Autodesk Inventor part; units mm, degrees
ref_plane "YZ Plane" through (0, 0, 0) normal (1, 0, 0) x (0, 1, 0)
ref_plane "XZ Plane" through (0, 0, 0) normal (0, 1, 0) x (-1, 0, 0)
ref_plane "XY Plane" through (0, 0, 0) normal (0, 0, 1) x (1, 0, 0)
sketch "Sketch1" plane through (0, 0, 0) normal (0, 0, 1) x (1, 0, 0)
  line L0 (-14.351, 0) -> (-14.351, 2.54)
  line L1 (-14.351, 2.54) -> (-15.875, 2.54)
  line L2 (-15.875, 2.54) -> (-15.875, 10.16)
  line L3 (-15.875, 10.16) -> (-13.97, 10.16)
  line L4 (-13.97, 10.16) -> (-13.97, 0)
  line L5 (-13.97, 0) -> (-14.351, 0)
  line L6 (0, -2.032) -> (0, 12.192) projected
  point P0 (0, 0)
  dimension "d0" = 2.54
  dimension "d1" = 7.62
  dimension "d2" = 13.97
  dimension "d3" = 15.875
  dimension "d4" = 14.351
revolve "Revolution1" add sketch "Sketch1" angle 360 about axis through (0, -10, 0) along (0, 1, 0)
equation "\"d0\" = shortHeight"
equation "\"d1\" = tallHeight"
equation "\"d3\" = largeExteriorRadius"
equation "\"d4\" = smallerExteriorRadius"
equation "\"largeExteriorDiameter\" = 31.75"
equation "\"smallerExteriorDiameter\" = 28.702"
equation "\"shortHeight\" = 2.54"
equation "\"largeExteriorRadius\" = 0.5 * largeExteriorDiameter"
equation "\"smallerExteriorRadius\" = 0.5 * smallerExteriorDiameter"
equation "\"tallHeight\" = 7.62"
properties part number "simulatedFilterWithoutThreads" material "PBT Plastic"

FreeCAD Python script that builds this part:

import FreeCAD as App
import Part
import Sketcher
Q = App.Units.Quantity


def add_polygon(sketch, points):
    """Adds a closed chain of lines whose ends are joined by coincident constraints."""
    first, n = sketch.GeometryCount, len(points)
    for a, b in zip(points, points[1:] + points[:1]):
        sketch.addGeometry(Part.LineSegment(App.Vector(*a, 0), App.Vector(*b, 0)), False)
    for i in range(n):
        sketch.addConstraint(Sketcher.Constraint("Coincident", first + i, 2, first + (i + 1) % n, 1))

doc = App.newDocument("Part")
body = doc.addObject("PartDesign::Body", "Body")

# Sketch on XY plane
sketch1 = body.newObject("Sketcher::SketchObject", "Sketch")
sketch1.AttachmentSupport = (doc.getObject("XY_Plane"), [""])
sketch1.MapMode = "FlatFace"
add_polygon(sketch1, [(-14.35, 2.54), (-14.35, 0), (-13.97, 0), (-13.97, 10.16), (-15.88, 10.16), (-15.88, 2.54)])  # lines 0-5
sketch1.addConstraint([
    Sketcher.Constraint("Vertical", 0),
    Sketcher.Constraint("Horizontal", 1),
    Sketcher.Constraint("Vertical", 2),
    Sketcher.Constraint("Horizontal", 3),
    Sketcher.Constraint("Vertical", 4),
    Sketcher.Constraint("Horizontal", 5),
    Sketcher.Constraint("PointOnObject", 0, 2, -1),
    Sketcher.Constraint("DistanceY", 0, 2, 0, 1, Q("0.1 in")),
    Sketcher.Constraint("DistanceY", 4, 2, 4, 1, Q("0.3 in")),
    Sketcher.Constraint("DistanceX", 1, 2, -1, 1, Q("0.55 in")),
    Sketcher.Constraint("DistanceX", 0, 2, -1, 1, Q("0.565 in")),
    Sketcher.Constraint("DistanceX", 3, 2, -1, 1, Q("0.625 in")),
])
revolution = body.newObject("PartDesign::Revolution", "Revolution")
revolution.Profile = sketch1
revolution.ReferenceAxis = (sketch1, ["V_Axis"])
revolution.Angle = 360

doc.recompute()
